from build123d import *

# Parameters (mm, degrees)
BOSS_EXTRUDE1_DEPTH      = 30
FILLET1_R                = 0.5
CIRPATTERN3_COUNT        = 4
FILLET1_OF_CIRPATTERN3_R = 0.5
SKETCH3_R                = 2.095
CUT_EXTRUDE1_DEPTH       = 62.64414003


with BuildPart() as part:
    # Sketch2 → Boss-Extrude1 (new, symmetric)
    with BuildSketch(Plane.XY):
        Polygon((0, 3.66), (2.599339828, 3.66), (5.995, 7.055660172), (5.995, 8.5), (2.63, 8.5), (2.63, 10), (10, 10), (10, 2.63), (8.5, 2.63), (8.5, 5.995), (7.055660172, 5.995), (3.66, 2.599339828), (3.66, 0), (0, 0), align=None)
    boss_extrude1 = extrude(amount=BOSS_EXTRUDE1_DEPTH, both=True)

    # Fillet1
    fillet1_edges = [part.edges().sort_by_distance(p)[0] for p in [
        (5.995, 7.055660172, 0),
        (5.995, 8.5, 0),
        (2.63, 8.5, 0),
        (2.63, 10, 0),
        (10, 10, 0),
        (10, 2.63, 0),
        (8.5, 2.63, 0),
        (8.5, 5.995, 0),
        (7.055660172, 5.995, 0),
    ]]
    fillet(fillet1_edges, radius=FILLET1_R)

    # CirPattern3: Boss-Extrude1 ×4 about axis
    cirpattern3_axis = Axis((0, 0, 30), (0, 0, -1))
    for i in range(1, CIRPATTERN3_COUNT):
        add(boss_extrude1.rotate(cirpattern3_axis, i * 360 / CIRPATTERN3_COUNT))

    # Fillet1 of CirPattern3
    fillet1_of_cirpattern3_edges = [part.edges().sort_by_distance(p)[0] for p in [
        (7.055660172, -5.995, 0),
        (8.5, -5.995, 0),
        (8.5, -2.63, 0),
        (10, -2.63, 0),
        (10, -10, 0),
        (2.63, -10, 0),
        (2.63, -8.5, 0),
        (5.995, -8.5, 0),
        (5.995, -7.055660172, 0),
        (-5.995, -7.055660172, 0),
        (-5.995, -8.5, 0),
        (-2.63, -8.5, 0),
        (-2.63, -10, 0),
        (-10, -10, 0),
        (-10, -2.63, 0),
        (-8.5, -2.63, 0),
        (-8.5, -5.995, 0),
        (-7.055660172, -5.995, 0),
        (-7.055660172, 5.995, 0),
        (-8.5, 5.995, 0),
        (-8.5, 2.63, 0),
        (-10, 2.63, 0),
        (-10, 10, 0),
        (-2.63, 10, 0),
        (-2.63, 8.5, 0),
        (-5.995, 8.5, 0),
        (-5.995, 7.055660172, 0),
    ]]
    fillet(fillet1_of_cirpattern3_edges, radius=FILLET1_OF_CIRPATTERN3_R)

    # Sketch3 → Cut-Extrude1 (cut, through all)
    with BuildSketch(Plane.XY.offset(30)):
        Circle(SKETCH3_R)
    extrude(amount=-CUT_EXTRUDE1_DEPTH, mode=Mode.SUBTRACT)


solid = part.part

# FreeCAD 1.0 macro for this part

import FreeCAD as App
import Part
import Sketcher

V = App.Vector
Q = App.Units.Quantity


def edges_at(feature, points):
    """Names of the edges that pass closest to the given points."""
    edges = feature.Shape.Edges
    near = lambda p: min(range(len(edges)), key=lambda i: edges[i].distToShape(Part.Vertex(*p))[0])
    return sorted({f"Edge{near(p) + 1}" for p in points})

doc = App.newDocument("Part")
body = doc.addObject("PartDesign::Body", "Body")

# Sketch on XY plane
sketch1 = body.newObject("Sketcher::SketchObject", "Sketch")
sketch1.AttachmentSupport = (doc.getObject("XY_Plane"), [""])
sketch1.MapMode = "FlatFace"
sketch1.addGeometry([
    Part.LineSegment(V(2.6, 3.7, 0), V(0, 3.7, 0)),  # 0
    Part.LineSegment(V(0, 3.7, 0), V(0, 0, 0)),  # 1
    Part.LineSegment(V(0, 0, 0), V(3.7, 0, 0)),  # 2
    Part.LineSegment(V(3.7, 0, 0), V(3.7, 2.6, 0)),  # 3
    Part.LineSegment(V(3.7, 2.6, 0), V(7.1, 6, 0)),  # 4
    Part.LineSegment(V(7.1, 6, 0), V(8.5, 6, 0)),  # 5
    Part.LineSegment(V(8.5, 6, 0), V(8.5, 2.6, 0)),  # 6
    Part.LineSegment(V(8.5, 2.6, 0), V(10, 2.6, 0)),  # 7
    Part.LineSegment(V(10, 2.6, 0), V(10, 10, 0)),  # 8
    Part.LineSegment(V(10, 10, 0), V(2.6, 10, 0)),  # 9
    Part.LineSegment(V(2.6, 10, 0), V(2.6, 8.5, 0)),  # 10
    Part.LineSegment(V(2.6, 8.5, 0), V(6, 8.5, 0)),  # 11
    Part.LineSegment(V(6, 8.5, 0), V(6, 7.1, 0)),  # 12
    Part.LineSegment(V(6, 7.1, 0), V(2.6, 3.7, 0)),  # 13
], False)
sketch1.addConstraint([
    Sketcher.Constraint("Coincident", 0, 2, 1, 1),
    Sketcher.Constraint("Coincident", 1, 2, 2, 1),
    Sketcher.Constraint("Coincident", 2, 2, 3, 1),
    Sketcher.Constraint("Coincident", 3, 2, 4, 1),
    Sketcher.Constraint("Coincident", 4, 2, 5, 1),
    Sketcher.Constraint("Coincident", 5, 2, 6, 1),
    Sketcher.Constraint("Coincident", 6, 2, 7, 1),
    Sketcher.Constraint("Coincident", 7, 2, 8, 1),
    Sketcher.Constraint("Coincident", 8, 2, 9, 1),
    Sketcher.Constraint("Coincident", 9, 2, 10, 1),
    Sketcher.Constraint("Coincident", 10, 2, 11, 1),
    Sketcher.Constraint("Coincident", 11, 2, 12, 1),
    Sketcher.Constraint("Coincident", 12, 2, 13, 1),
    Sketcher.Constraint("Coincident", 13, 2, 0, 1),
    Sketcher.Constraint("Horizontal", 0),
    Sketcher.Constraint("Vertical", 1),
    Sketcher.Constraint("Horizontal", 2),
    Sketcher.Constraint("Vertical", 3),
    Sketcher.Constraint("Horizontal", 5),
    Sketcher.Constraint("Vertical", 6),
    Sketcher.Constraint("Horizontal", 7),
    Sketcher.Constraint("Vertical", 8),
    Sketcher.Constraint("Horizontal", 9),
    Sketcher.Constraint("Vertical", 10),
    Sketcher.Constraint("Horizontal", 11),
    Sketcher.Constraint("Vertical", 12),
    Sketcher.Constraint("Coincident", 1, 2, -1, 1),
    Sketcher.Constraint("Parallel", 4, 13),
    Sketcher.Constraint("Equal", 2, 1),
    Sketcher.Constraint("Equal", 0, 3),
    Sketcher.Constraint("Equal", 11, 6),
    Sketcher.Constraint("Equal", 9, 8),
    Sketcher.Constraint("Equal", 7, 10),
    Sketcher.Constraint("Equal", 5, 12),
    Sketcher.Constraint("Angle", 4, Q("45 deg")),
    Sketcher.Constraint("DistanceX", 7, 1, 7, 2, Q("1.5 mm")),
    Sketcher.Constraint("DistanceX", -1, 1, 7, 2, Q("10 mm")),
    Sketcher.Constraint("DistanceX", 2, 1, 2, 2, Q("3.66 mm")),
    Sketcher.Constraint("DistanceX", 9, 2, 9, 1, Q("7.37 mm")),
    Sketcher.Constraint("DistanceX", 11, 1, 11, 2, Q("3.365 mm")),
    Sketcher.Constraint("DistanceX", 0, 2, 0, 1, Q("2.59934 mm")),
])
pad1 = body.newObject("PartDesign::Pad", "Pad")
pad1.Profile = sketch1
pad1.Length = 60
pad1.Midplane = True
doc.recompute()

fillet = body.newObject("PartDesign::Fillet", "Fillet")
fillet.Base = (pad1, edges_at(pad1, [
    (5.995, 7.056, 0),
    (5.995, 8.5, 0),
    (2.63, 8.5, 0),
    (2.63, 10, 0),
    (10, 10, 0),
    (10, 2.63, 0),
    (8.5, 2.63, 0),
    (8.5, 5.995, 0),
    (7.056, 5.995, 0),
]))
fillet.Radius = 0.5
doc.recompute()

polarpattern = body.newObject("PartDesign::PolarPattern", "PolarPattern")
polarpattern.Originals = [pad1]
polarpattern.Axis = (doc.getObject("Z_Axis"), [""])
polarpattern.Angle = 360
polarpattern.Occurrences = 4
body.Tip = polarpattern
doc.recompute()

fillet2 = body.newObject("PartDesign::Fillet", "Fillet001")
fillet2.Base = (polarpattern, edges_at(polarpattern, [
    (7.056, -5.995, 0),
    (8.5, -5.995, 0),
    (8.5, -2.63, 0),
    (10, -2.63, 0),
    (10, -10, 0),
    (2.63, -10, 0),
    (2.63, -8.5, 0),
    (5.995, -8.5, 0),
    (5.995, -7.056, 0),
    (-5.995, -7.056, 0),
    (-5.995, -8.5, 0),
    (-2.63, -8.5, 0),
    (-2.63, -10, 0),
    (-10, -10, 0),
    (-10, -2.63, 0),
    (-8.5, -2.63, 0),
    (-8.5, -5.995, 0),
    (-7.056, -5.995, 0),
    (-7.056, 5.995, 0),
    (-8.5, 5.995, 0),
    (-8.5, 2.63, 0),
    (-10, 2.63, 0),
    (-10, 10, 0),
    (-2.63, 10, 0),
    (-2.63, 8.5, 0),
    (-5.995, 8.5, 0),
    (-5.995, 7.056, 0),
]))
fillet2.Radius = 0.5

# Sketch on XY plane
sketch2 = body.newObject("Sketcher::SketchObject", "Sketch001")
sketch2.AttachmentSupport = (doc.getObject("XY_Plane"), [""])
sketch2.MapMode = "FlatFace"
sketch2.AttachmentOffset = App.Placement(V(0, 0, 30), App.Rotation())
sketch2.addGeometry(Part.Circle(V(0, 0, 0), V(0, 0, 1), 2.1), False)
sketch2.addConstraint([
    Sketcher.Constraint("Coincident", 0, 3, -1, 1),
    Sketcher.Constraint("Diameter", 0, Q("4.19 mm")),
])
pocket1 = body.newObject("PartDesign::Pocket", "Pocket")
pocket1.Profile = sketch2
pocket1.Type = "ThroughAll"

doc.recompute()
